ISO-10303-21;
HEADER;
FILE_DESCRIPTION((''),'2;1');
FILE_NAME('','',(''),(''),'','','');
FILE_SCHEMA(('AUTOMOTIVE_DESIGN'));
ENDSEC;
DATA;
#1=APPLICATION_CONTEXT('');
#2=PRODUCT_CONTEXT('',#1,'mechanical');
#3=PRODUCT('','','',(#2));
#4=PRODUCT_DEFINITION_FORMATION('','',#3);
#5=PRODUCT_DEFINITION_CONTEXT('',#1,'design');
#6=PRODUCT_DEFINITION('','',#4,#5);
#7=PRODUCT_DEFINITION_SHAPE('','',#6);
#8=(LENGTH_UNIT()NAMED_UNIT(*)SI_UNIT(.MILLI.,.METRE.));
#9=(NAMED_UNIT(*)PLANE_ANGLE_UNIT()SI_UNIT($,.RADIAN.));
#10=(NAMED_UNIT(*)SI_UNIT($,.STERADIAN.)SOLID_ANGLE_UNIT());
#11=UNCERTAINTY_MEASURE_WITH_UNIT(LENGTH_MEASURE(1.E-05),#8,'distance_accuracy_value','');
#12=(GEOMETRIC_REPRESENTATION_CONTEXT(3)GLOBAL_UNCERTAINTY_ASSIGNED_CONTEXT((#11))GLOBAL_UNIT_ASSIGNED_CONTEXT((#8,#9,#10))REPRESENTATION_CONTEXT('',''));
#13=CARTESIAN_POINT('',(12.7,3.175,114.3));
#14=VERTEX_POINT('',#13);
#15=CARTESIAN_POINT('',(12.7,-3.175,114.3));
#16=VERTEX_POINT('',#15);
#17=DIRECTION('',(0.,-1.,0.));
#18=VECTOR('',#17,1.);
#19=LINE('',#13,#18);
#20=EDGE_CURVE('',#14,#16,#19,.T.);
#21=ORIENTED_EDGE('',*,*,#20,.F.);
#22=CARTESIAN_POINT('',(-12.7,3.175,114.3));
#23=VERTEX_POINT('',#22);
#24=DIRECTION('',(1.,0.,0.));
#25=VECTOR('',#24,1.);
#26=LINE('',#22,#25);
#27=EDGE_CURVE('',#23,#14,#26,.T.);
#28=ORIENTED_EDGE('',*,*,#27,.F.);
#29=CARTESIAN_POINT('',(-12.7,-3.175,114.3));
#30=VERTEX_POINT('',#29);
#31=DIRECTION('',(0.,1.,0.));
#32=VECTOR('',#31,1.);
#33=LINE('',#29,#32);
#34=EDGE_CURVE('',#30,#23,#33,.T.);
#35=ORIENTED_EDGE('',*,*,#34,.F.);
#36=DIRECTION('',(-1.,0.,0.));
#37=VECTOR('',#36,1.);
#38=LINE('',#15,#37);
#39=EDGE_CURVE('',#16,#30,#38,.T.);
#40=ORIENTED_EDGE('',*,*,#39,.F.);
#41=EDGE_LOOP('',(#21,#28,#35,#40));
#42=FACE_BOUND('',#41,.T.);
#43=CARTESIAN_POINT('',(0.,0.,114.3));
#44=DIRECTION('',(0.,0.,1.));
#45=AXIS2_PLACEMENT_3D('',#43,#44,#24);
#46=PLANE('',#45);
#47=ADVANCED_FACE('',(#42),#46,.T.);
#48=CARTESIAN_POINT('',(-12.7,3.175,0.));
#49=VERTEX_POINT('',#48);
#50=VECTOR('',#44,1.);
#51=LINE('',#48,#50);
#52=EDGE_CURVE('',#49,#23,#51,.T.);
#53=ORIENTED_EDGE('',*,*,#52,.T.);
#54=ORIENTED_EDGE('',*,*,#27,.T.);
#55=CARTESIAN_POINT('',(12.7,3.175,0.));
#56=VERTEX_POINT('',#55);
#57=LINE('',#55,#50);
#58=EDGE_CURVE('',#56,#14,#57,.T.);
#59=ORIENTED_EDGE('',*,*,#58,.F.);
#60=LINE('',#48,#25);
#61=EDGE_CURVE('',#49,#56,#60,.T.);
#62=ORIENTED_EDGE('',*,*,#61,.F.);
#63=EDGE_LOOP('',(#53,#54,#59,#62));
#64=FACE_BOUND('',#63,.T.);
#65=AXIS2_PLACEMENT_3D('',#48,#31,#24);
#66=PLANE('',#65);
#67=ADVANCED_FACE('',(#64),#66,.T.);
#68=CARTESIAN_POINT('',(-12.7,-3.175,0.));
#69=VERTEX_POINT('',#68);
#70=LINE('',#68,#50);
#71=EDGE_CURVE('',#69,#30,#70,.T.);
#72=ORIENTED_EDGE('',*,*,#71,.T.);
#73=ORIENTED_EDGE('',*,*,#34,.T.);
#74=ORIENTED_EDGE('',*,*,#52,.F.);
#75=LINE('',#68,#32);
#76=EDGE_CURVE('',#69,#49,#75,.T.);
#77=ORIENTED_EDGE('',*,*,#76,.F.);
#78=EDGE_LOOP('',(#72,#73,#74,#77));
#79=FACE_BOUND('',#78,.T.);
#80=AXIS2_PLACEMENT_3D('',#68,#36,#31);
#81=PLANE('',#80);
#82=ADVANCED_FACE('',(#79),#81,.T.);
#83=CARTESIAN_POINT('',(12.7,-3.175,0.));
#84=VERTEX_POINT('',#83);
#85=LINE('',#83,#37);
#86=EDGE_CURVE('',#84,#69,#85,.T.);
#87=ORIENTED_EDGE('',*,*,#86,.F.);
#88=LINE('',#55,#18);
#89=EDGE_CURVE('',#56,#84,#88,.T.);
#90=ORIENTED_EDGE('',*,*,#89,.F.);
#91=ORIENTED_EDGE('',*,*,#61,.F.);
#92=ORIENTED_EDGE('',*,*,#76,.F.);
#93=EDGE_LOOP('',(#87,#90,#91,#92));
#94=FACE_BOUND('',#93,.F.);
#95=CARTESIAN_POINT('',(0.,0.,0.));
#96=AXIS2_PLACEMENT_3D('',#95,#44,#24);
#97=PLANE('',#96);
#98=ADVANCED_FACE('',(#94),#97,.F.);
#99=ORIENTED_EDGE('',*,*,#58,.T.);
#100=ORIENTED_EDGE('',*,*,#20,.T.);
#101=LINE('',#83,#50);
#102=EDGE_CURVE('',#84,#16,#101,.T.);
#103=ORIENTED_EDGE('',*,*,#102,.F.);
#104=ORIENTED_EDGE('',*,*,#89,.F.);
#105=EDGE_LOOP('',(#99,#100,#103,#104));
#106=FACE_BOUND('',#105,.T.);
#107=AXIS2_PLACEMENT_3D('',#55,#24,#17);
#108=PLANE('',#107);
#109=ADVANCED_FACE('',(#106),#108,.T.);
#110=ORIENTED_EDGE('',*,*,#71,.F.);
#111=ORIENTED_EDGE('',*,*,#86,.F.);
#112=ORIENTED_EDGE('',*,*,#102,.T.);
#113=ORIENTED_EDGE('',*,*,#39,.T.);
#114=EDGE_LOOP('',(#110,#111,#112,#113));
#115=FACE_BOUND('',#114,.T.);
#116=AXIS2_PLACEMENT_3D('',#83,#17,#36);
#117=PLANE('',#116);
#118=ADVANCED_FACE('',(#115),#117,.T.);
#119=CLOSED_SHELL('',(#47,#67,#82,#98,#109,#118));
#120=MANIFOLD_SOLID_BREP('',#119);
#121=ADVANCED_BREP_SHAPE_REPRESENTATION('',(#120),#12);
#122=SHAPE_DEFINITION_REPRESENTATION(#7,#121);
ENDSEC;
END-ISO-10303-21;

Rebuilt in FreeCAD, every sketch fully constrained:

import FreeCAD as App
import Part
import Sketcher
Q = App.Units.Quantity

doc = App.newDocument("Part")
body = doc.addObject("PartDesign::Body", "Body")

# Sketch on XY plane
sketch1 = body.newObject("Sketcher::SketchObject", "Sketch")
sketch1.AttachmentSupport = (doc.getObject("XY_Plane"), [""])
sketch1.MapMode = "FlatFace"
sketch1.addGeometry(Part.LineSegment(App.Vector(-13, -3, 0), App.Vector(13, -3, 0)), False)
sketch1.addGeometry(Part.LineSegment(App.Vector(13, -3, 0), App.Vector(13, 3, 0)), False)
sketch1.addGeometry(Part.LineSegment(App.Vector(13, 3, 0), App.Vector(-13, 3, 0)), False)
sketch1.addGeometry(Part.LineSegment(App.Vector(-13, 3, 0), App.Vector(-13, -3, 0)), False)
sketch1.addConstraint(Sketcher.Constraint("Coincident", 0, 2, 1, 1))
sketch1.addConstraint(Sketcher.Constraint("Coincident", 1, 2, 2, 1))
sketch1.addConstraint(Sketcher.Constraint("Coincident", 2, 2, 3, 1))
sketch1.addConstraint(Sketcher.Constraint("Coincident", 3, 2, 0, 1))
sketch1.addConstraint(Sketcher.Constraint("Horizontal", 0))
sketch1.addConstraint(Sketcher.Constraint("Vertical", 1))
sketch1.addConstraint(Sketcher.Constraint("Horizontal", 2))
sketch1.addConstraint(Sketcher.Constraint("Vertical", 3))
sketch1.addConstraint(Sketcher.Constraint("Symmetric", 0, 2, 2, 2, -1, 1))
sketch1.addConstraint(Sketcher.Constraint("DistanceX", 0, 1, 0, 2, Q("1 in")))
sketch1.addConstraint(Sketcher.Constraint("DistanceY", 1, 1, 1, 2, Q("0.25 in")))
pad1 = body.newObject("PartDesign::Pad", "Pad")
pad1.Profile = sketch1
pad1.Length = Q("4.5 in")

doc.recompute()
